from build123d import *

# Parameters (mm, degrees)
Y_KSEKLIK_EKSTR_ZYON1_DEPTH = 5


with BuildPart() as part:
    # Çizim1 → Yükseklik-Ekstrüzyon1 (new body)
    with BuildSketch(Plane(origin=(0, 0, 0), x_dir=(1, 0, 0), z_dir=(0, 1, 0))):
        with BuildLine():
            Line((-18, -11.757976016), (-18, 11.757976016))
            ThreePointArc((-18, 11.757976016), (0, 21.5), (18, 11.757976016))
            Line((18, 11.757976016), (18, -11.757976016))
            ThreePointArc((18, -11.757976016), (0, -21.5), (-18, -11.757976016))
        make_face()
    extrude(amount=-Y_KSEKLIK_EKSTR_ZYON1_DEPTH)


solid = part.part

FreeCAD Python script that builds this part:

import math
import FreeCAD as App
import Part
import Sketcher
Q = App.Units.Quantity

doc = App.newDocument("Part")
params = doc.addObject("Spreadsheet::Sheet", "Params")
for row, (alias, value) in enumerate([
    ("sketch1_radius", "21.5 mm"),
    ("pad1_length", "5 mm"),
], start=1):
    params.set(f"A{row}", alias)
    params.set(f"B{row}", "=" + value)
    params.setAlias(f"B{row}", alias)

body = doc.addObject("PartDesign::Body", "Body")

# Sketch on XZ plane
sketch1 = body.newObject("Sketcher::SketchObject", "Sketch")
sketch1.AttachmentSupport = (doc.getObject("XZ_Plane"), [""])
sketch1.MapMode = "FlatFace"
sketch1.addGeometry([
    Part.LineSegment(App.Vector(-18, -11.757976, 0), App.Vector(-18, 11.757976, 0)),
    Part.ArcOfCircle(Part.Circle(App.Vector(0, 0, 0), App.Vector(0, 0, 1), 21.5), math.radians(33.153408), math.radians(146.846592)),
    Part.LineSegment(App.Vector(18, 11.757976, 0), App.Vector(18, -11.757976, 0)),
    Part.ArcOfCircle(Part.Circle(App.Vector(0, 0, 0), App.Vector(0, 0, 1), 21.5), math.radians(-146.846592), math.radians(-33.153408)),
], False)
sketch1.addConstraint([
    Sketcher.Constraint("Coincident", 0, 2, 1, 2),
    Sketcher.Constraint("Coincident", 1, 1, 2, 1),
    Sketcher.Constraint("Coincident", 2, 2, 3, 2),
    Sketcher.Constraint("Coincident", 3, 1, 0, 1),
    Sketcher.Constraint("Vertical", 0),
    Sketcher.Constraint("Vertical", 2),
    Sketcher.Constraint("Coincident", 1, 3, -1, 1),
    Sketcher.Constraint("Coincident", 3, 3, -1, 1),
    Sketcher.Constraint("Equal", 1, 3),
    Sketcher.Constraint("Horizontal", 0, 2, 1, 1),
    Sketcher.Constraint("Radius", 1, Q("21.5 mm")),
    Sketcher.Constraint("DistanceX", 0, 2, -1, 1, Q("18 mm")),
])
sketch1.setExpression("Constraints[10]", "Params.sketch1_radius")
pad1 = body.newObject("PartDesign::Pad", "Pad")
pad1.Profile = sketch1
pad1.setExpression("Length", "Params.pad1_length")

doc.recompute()
